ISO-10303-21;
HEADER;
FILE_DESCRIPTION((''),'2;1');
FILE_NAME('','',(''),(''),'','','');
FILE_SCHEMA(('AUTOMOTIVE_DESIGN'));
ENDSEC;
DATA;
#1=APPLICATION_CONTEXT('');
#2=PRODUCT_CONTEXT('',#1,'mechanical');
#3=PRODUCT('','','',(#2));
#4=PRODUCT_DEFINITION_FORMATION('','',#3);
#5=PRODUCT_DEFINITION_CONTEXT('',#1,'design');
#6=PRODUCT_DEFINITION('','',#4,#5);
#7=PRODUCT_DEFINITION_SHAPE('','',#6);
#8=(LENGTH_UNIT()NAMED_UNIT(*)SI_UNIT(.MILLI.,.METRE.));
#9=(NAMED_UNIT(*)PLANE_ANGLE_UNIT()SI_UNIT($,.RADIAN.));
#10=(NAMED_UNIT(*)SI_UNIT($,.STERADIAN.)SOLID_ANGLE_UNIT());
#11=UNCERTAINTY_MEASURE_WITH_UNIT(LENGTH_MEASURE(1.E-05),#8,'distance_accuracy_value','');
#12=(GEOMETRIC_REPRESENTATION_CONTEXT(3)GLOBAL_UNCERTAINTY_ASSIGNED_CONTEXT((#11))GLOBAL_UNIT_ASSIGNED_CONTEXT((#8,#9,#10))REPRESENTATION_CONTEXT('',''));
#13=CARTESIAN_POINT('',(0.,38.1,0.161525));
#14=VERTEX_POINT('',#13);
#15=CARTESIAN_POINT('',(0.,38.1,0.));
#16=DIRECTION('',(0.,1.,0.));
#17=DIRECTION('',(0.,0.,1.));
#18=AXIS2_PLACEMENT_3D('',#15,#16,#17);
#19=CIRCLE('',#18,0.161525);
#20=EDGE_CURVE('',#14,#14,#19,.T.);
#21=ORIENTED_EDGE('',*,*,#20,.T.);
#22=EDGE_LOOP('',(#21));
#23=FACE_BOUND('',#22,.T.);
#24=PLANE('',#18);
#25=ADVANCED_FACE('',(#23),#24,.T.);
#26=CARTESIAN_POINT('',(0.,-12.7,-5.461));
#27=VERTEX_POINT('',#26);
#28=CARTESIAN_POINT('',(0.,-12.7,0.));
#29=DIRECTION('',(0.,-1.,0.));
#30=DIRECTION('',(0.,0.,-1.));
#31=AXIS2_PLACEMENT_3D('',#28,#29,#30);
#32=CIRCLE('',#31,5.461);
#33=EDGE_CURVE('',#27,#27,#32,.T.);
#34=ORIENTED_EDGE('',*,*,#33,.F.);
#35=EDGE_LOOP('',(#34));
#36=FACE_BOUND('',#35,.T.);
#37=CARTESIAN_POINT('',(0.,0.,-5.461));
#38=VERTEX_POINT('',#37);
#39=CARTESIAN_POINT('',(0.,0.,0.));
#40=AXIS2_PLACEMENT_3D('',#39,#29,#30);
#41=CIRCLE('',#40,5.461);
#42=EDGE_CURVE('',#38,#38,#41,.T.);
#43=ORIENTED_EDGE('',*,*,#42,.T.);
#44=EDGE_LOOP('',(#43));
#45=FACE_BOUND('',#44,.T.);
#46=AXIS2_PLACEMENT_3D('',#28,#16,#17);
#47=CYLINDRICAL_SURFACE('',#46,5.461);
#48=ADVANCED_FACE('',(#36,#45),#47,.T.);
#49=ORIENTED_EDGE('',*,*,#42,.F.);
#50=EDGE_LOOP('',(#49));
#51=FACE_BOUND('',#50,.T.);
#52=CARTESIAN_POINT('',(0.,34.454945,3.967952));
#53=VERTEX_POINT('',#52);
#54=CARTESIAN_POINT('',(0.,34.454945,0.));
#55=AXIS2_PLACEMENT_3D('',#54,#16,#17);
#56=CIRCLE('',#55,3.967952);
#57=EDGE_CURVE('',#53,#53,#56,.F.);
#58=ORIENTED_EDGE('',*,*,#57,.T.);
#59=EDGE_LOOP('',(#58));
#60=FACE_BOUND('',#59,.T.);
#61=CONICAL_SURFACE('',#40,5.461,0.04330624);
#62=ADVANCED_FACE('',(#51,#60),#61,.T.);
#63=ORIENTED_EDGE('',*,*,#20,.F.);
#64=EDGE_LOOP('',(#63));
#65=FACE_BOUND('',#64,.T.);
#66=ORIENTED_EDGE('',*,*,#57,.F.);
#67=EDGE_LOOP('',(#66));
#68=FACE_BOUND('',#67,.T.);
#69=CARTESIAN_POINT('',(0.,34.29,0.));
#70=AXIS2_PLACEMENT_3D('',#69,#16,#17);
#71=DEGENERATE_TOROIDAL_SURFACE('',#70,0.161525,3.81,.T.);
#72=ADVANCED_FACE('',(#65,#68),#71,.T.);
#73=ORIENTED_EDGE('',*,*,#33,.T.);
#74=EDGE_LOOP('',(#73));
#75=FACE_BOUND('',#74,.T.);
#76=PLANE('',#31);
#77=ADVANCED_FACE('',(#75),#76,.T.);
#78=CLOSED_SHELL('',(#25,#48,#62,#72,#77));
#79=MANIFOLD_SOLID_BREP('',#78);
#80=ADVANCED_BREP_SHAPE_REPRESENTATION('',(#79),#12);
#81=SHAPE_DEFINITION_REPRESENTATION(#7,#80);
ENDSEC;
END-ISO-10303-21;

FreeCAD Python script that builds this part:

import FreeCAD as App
import Part
import Sketcher
Q = App.Units.Quantity


def edges_at(feature, points):
    """Names of the edges that pass closest to the given points."""
    edges = feature.Shape.Edges
    near = lambda p: min(range(len(edges)), key=lambda i: edges[i].distToShape(Part.Vertex(*p))[0])
    return sorted({f"Edge{near(p) + 1}" for p in points})


def add_polygon(sketch, points):
    """Adds a closed chain of lines whose ends are joined by coincident constraints."""
    first, n = sketch.GeometryCount, len(points)
    for a, b in zip(points, points[1:] + points[:1]):
        sketch.addGeometry(Part.LineSegment(App.Vector(*a, 0), App.Vector(*b, 0)), False)
    for i in range(n):
        sketch.addConstraint(Sketcher.Constraint("Coincident", first + i, 2, first + (i + 1) % n, 1))

doc = App.newDocument("Part")
body = doc.addObject("PartDesign::Body", "Body")

# Sketch on XY plane
sketch1 = body.newObject("Sketcher::SketchObject", "Sketch")
sketch1.AttachmentSupport = (doc.getObject("XY_Plane"), [""])
sketch1.MapMode = "FlatFace"
add_polygon(sketch1, [(0, 38.1), (0, 0), (5.5, 0), (3.8, 38.1)])  # lines 0-3
sketch1.addConstraint([
    Sketcher.Constraint("Vertical", 0),
    Sketcher.Constraint("Horizontal", 1),
    Sketcher.Constraint("Horizontal", 3),
    Sketcher.Constraint("Coincident", 0, 2, -1, 1),
    Sketcher.Constraint("DistanceY", 0, 2, 0, 1, Q("1.5 in")),
    Sketcher.Constraint("DistanceX", 3, 2, 3, 1, Q("0.15 in")),
    Sketcher.Constraint("DistanceX", 1, 1, 1, 2, Q("0.215 in")),
])
revolution = body.newObject("PartDesign::Revolution", "Revolution")
revolution.Profile = sketch1
revolution.ReferenceAxis = (sketch1, ["V_Axis"])
revolution.Angle = 360

# Sketch on XZ plane
sketch2 = body.newObject("Sketcher::SketchObject", "Sketch001")
sketch2.AttachmentSupport = (doc.getObject("XZ_Plane"), [""])
sketch2.MapMode = "FlatFace"
sketch2.addGeometry(Part.Circle(App.Vector(0, 0, 0), App.Vector(0, 0, 1), 5), False)
sketch2.addConstraint([
    Sketcher.Constraint("Coincident", 0, 3, -1, 1),
    Sketcher.Constraint("Diameter", 0, Q("0.43 in")),
])
pad1 = body.newObject("PartDesign::Pad", "Pad")
pad1.Profile = sketch2
pad1.Length = Q("0.5 in")
doc.recompute()

fillet = body.newObject("PartDesign::Fillet", "Fillet")
fillet.Base = (pad1, edges_at(pad1, [(0, 38.1, 3.81)]))
fillet.Radius = Q("0.15 in")

doc.recompute()
